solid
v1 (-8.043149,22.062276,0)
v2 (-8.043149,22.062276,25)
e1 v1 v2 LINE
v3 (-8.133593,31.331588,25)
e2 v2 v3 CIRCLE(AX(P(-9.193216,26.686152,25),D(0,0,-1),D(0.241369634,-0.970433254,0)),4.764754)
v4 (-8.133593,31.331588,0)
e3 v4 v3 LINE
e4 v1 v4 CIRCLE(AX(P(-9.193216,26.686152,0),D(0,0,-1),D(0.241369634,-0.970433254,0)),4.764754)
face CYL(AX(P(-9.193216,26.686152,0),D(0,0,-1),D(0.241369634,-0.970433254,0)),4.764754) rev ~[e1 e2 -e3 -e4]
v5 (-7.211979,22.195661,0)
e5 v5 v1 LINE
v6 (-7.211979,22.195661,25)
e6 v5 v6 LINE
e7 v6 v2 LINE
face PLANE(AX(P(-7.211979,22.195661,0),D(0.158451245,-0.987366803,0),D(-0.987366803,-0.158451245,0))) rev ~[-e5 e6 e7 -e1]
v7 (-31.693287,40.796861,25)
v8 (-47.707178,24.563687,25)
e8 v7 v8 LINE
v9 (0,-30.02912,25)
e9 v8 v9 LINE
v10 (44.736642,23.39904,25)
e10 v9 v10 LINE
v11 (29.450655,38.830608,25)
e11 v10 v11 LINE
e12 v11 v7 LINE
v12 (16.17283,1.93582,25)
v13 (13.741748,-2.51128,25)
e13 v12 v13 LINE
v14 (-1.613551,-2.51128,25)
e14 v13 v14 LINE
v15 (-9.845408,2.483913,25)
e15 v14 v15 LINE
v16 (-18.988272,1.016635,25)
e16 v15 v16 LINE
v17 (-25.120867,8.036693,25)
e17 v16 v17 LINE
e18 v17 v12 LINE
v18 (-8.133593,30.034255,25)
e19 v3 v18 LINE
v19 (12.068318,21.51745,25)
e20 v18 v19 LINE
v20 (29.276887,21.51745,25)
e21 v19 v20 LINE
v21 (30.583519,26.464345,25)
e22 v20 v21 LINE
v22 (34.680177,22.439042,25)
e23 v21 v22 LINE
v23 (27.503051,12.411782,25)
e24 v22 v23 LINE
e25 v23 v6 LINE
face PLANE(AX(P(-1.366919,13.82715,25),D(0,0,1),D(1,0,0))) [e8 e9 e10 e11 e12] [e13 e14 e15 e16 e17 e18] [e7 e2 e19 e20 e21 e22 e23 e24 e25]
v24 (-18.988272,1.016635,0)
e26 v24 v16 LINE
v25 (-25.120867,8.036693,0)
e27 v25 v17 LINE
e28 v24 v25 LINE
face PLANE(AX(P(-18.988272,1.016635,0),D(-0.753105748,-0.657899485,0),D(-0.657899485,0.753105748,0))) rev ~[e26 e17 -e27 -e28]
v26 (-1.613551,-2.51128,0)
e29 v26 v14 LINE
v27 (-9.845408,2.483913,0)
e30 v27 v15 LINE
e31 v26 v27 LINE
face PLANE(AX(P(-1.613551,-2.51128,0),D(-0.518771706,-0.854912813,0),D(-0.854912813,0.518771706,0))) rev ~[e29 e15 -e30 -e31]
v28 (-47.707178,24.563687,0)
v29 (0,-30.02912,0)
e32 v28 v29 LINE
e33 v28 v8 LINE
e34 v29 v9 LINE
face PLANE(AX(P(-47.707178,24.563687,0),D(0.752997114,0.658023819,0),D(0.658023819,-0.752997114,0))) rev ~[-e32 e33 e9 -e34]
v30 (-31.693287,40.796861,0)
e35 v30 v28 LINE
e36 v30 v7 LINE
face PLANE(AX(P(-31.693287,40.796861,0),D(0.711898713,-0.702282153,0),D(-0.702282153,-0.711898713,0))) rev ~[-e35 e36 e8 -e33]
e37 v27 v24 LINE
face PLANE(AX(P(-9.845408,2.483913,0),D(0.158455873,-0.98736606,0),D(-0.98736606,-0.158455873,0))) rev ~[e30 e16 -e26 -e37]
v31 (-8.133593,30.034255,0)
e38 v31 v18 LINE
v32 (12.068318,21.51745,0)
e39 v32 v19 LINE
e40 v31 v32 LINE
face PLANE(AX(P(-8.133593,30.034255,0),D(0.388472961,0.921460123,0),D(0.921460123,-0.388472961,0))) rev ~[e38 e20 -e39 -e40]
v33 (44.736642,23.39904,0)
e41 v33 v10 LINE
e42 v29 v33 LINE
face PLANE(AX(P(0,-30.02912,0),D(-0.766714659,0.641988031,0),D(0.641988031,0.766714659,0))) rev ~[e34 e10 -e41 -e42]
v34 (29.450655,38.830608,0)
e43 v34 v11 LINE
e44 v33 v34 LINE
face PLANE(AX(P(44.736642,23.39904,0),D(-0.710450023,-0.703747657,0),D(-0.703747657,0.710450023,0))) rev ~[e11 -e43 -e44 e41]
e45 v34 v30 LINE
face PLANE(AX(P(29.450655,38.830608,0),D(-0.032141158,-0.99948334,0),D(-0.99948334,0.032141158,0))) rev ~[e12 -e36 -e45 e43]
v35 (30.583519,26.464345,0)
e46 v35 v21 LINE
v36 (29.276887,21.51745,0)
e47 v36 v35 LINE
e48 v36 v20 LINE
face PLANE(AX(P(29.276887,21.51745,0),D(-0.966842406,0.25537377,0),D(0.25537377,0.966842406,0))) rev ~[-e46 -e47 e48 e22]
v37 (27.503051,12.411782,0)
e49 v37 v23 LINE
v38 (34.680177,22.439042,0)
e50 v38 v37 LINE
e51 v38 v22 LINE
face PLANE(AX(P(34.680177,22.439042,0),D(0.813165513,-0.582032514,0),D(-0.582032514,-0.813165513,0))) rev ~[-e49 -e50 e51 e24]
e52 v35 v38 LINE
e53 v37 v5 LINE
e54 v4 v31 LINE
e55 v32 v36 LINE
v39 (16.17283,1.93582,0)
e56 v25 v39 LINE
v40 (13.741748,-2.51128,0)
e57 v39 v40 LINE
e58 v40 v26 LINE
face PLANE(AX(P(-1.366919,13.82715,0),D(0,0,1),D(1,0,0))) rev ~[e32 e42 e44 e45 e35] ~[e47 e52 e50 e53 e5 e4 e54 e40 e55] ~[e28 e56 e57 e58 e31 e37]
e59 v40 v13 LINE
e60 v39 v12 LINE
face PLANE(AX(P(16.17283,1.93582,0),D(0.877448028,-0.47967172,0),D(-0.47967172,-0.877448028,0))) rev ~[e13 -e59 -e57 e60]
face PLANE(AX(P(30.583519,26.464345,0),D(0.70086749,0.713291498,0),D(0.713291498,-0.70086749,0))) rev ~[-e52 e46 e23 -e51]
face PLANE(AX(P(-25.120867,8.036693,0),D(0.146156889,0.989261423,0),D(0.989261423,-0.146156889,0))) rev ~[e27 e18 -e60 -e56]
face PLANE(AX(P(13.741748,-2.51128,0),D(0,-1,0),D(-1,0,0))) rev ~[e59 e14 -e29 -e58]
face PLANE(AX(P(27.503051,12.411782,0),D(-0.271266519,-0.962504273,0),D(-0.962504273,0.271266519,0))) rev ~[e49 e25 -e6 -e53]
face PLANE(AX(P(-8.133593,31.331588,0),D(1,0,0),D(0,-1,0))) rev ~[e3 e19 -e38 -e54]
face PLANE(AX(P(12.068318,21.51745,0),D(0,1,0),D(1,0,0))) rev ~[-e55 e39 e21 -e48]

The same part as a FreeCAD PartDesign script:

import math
import FreeCAD as App
import Part
import Sketcher
from FreeCAD import Vector
Q = App.Units.Quantity

doc = App.newDocument("Part")
body = doc.addObject("PartDesign::Body", "Body")

# Sketch on XY plane
sketch1 = body.newObject("Sketcher::SketchObject", "Sketch")
sketch1.AttachmentSupport = (doc.getObject("XY_Plane"), [""])
sketch1.MapMode = "FlatFace"
sketch1.addGeometry([
    Part.LineSegment(Vector(29.5, 38.8, 0), Vector(-31.7, 40.8, 0)),  # 0
    Part.LineSegment(Vector(-31.7, 40.8, 0), Vector(-47.7, 24.6, 0)),  # 1
    Part.LineSegment(Vector(-47.7, 24.6, 0), Vector(0, -30, 0)),  # 2
    Part.LineSegment(Vector(0, -30, 0), Vector(44.7, 23.4, 0)),  # 3
    Part.LineSegment(Vector(44.7, 23.4, 0), Vector(29.5, 38.8, 0)),  # 4
    Part.LineSegment(Vector(-9.8, 2.5, 0), Vector(-19, 1, 0)),  # 5
    Part.LineSegment(Vector(-19, 1, 0), Vector(-25.1, 8, 0)),  # 6
    Part.LineSegment(Vector(-25.1, 8, 0), Vector(16.2, 1.9, 0)),  # 7
    Part.LineSegment(Vector(16.2, 1.9, 0), Vector(13.7, -2.5, 0)),  # 8
    Part.LineSegment(Vector(13.7, -2.5, 0), Vector(-1.6, -2.5, 0)),  # 9
    Part.LineSegment(Vector(-1.6, -2.5, 0), Vector(-9.8, 2.5, 0)),  # 10
    Part.LineSegment(Vector(-7.2, 22.2, 0), Vector(-8, 22.1, 0)),  # 11
    Part.ArcOfCircle(Part.Circle(Vector(-9.2, 26.7, 0), Vector(0, 0, 1), 4.8), math.radians(77), math.radians(284)),  # 12
    Part.LineSegment(Vector(-8.1, 31.3, 0), Vector(-8.1, 30, 0)),  # 13
    Part.LineSegment(Vector(-8.1, 30, 0), Vector(12.1, 21.5, 0)),  # 14
    Part.LineSegment(Vector(12.1, 21.5, 0), Vector(29.3, 21.5, 0)),  # 15
    Part.LineSegment(Vector(29.3, 21.5, 0), Vector(30.6, 26.5, 0)),  # 16
    Part.LineSegment(Vector(30.6, 26.5, 0), Vector(34.7, 22.4, 0)),  # 17
    Part.LineSegment(Vector(34.7, 22.4, 0), Vector(27.5, 12.4, 0)),  # 18
    Part.LineSegment(Vector(27.5, 12.4, 0), Vector(-7.2, 22.2, 0)),  # 19
], False)
sketch1.addConstraint([
    Sketcher.Constraint("Coincident", 0, 2, 1, 1),
    Sketcher.Constraint("Coincident", 1, 2, 2, 1),
    Sketcher.Constraint("Coincident", 2, 2, 3, 1),
    Sketcher.Constraint("Coincident", 3, 2, 4, 1),
    Sketcher.Constraint("Coincident", 4, 2, 0, 1),
    Sketcher.Constraint("Coincident", 5, 2, 6, 1),
    Sketcher.Constraint("Coincident", 6, 2, 7, 1),
    Sketcher.Constraint("Coincident", 7, 2, 8, 1),
    Sketcher.Constraint("Coincident", 8, 2, 9, 1),
    Sketcher.Constraint("Coincident", 9, 2, 10, 1),
    Sketcher.Constraint("Coincident", 10, 2, 5, 1),
    Sketcher.Constraint("Coincident", 11, 2, 12, 2),
    Sketcher.Constraint("Coincident", 12, 1, 13, 1),
    Sketcher.Constraint("Coincident", 13, 2, 14, 1),
    Sketcher.Constraint("Coincident", 14, 2, 15, 1),
    Sketcher.Constraint("Coincident", 15, 2, 16, 1),
    Sketcher.Constraint("Coincident", 16, 2, 17, 1),
    Sketcher.Constraint("Coincident", 17, 2, 18, 1),
    Sketcher.Constraint("Coincident", 18, 2, 19, 1),
    Sketcher.Constraint("Coincident", 19, 2, 11, 1),
    Sketcher.Constraint("Horizontal", 9),
    Sketcher.Constraint("Vertical", 13),
    Sketcher.Constraint("Horizontal", 15),
    Sketcher.Constraint("PointOnObject", 2, 2, -2),
    Sketcher.Constraint("DistanceX", 9, 2, 9, 1, Q("15.355299 mm")),
    Sketcher.Constraint("Radius", 12, Q("4.764754 mm")),
    Sketcher.Constraint("DistanceX", 15, 1, 15, 2, Q("17.208569 mm")),
    Sketcher.Constraint("DistanceY", 8, 2, 7, 2, Q("4.4471 mm")),
    Sketcher.Constraint("DistanceY", 14, 2, 12, 3, Q("5.168702 mm")),
    Sketcher.Constraint("DistanceX", 14, 2, 16, 2, Q("18.515201 mm")),
    Sketcher.Constraint("Distance", 0, Q("61.175549 mm")),
    Sketcher.Constraint("Distance", 8, Q("5.06822 mm")),
    Sketcher.Constraint("DistanceY", 13, 2, 13, 1, Q("1.297333 mm")),
    Sketcher.Constraint("DistanceY", -1, 1, 12, 3, Q("26.686152 mm")),
    Sketcher.Constraint("DistanceY", -1, 1, 0, 2, Q("40.796861 mm")),
    Sketcher.Constraint("DistanceY", 2, 2, -1, 1, Q("30.02912 mm")),
    Sketcher.Constraint("DistanceY", -1, 1, 3, 2, Q("23.39904 mm")),
    Sketcher.Constraint("DistanceX", 5, 2, -1, 1, Q("18.988272 mm")),
    Sketcher.Constraint("DistanceX", -1, 1, 7, 2, Q("16.17283 mm")),
    Sketcher.Constraint("DistanceY", -1, 1, 7, 2, Q("1.93582 mm")),
    Sketcher.Constraint("DistanceX", 10, 2, -1, 1, Q("9.845408 mm")),
    Sketcher.Constraint("DistanceX", 11, 2, -1, 1, Q("8.043149 mm")),
    Sketcher.Constraint("DistanceY", -1, 1, 12, 1, Q("31.331588 mm")),
    Sketcher.Constraint("DistanceX", -1, 1, 16, 2, Q("30.583519 mm")),
    Sketcher.Constraint("DistanceX", -1, 1, 18, 2, Q("27.503051 mm")),
    Sketcher.Constraint("DistanceX", 19, 2, -1, 1, Q("7.211979 mm")),
    Sketcher.Constraint("DistanceY", -1, 1, 19, 2, Q("22.195661 mm")),
    Sketcher.Constraint("DistanceX", 0, 2, 12, 3, Q("22.500071 mm")),
    Sketcher.Constraint("DistanceX", 1, 2, 0, 2, Q("16.013891 mm")),
    Sketcher.Constraint("DistanceX", 0, 2, 3, 2, Q("76.429929 mm")),
    Sketcher.Constraint("DistanceX", 12, 3, 4, 2, Q("38.643871 mm")),
    Sketcher.Constraint("DistanceY", 1, 2, 4, 2, Q("14.266921 mm")),
    Sketcher.Constraint("DistanceX", 6, 2, 12, 3, Q("15.927651 mm")),
    Sketcher.Constraint("DistanceY", 6, 2, 12, 3, Q("18.649459 mm")),
    Sketcher.Constraint("DistanceX", 6, 2, 10, 2, Q("15.275459 mm")),
    Sketcher.Constraint("DistanceY", 10, 2, 6, 2, Q("5.55278 mm")),
    Sketcher.Constraint("DistanceY", 5, 2, 11, 2, Q("21.045641 mm")),
    Sketcher.Constraint("DistanceX", 15, 2, 17, 2, Q("5.40329 mm")),
    Sketcher.Constraint("DistanceY", 18, 2, 17, 2, Q("10.02726 mm")),
    Sketcher.Constraint("Distance", 16, Q("5.116547 mm")),
    Sketcher.Constraint("Distance", 17, Q("5.743315 mm")),
])
pad1 = body.newObject("PartDesign::Pad", "Pad")
pad1.Profile = sketch1
pad1.Length = 25

doc.recompute()
